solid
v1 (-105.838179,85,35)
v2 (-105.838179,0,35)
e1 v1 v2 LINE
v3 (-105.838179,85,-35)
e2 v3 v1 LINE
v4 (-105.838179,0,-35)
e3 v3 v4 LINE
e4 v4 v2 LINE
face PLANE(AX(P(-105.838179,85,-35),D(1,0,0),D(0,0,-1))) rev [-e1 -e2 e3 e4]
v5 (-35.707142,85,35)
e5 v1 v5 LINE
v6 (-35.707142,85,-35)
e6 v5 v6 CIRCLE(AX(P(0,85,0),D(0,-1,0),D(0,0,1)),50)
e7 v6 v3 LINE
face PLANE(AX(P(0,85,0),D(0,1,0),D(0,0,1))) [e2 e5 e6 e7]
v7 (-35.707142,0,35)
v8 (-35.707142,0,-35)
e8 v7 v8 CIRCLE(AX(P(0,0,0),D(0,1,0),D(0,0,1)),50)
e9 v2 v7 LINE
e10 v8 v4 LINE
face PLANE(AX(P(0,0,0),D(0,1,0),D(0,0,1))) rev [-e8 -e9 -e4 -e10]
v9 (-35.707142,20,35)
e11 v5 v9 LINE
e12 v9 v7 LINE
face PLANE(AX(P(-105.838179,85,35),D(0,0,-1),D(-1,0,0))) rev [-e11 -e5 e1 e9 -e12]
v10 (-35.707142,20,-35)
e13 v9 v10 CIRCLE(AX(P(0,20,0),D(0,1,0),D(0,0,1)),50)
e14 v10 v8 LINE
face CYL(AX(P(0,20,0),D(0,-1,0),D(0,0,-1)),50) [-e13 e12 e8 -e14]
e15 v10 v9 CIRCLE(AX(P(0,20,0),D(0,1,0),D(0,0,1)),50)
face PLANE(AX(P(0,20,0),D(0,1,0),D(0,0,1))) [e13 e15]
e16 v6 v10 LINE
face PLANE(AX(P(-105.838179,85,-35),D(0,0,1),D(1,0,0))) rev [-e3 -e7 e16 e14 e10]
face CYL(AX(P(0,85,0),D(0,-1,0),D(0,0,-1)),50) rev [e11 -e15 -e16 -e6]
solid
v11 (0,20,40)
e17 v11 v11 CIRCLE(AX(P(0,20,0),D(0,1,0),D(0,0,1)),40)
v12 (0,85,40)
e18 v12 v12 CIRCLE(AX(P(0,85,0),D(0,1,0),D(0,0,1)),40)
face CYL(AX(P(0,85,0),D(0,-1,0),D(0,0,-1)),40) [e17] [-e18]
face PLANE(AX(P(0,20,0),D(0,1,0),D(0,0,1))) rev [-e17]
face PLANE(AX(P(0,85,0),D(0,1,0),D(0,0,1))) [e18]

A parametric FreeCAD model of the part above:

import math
import FreeCAD as App
import Part
import Sketcher

doc = App.newDocument("Part")
body = doc.addObject("PartDesign::Body", "Body")

sketch1 = body.newObject("Sketcher::SketchObject", "Sketch")
sketch1.AttachmentSupport = (doc.getObject("XZ_Plane"), [""])
sketch1.MapMode = "FlatFace"
sketch1.addGeometry(Part.Circle(App.Vector(0, 0, 0), App.Vector(0, 0, 1), 50), False)
sketch1.addConstraint(Sketcher.Constraint("Coincident", 0, 3, -1, 1))
sketch1.addConstraint(Sketcher.Constraint("Diameter", 0, 100.0))
pad1 = body.newObject("PartDesign::Pad", "Pad")
pad1.Profile = sketch1
pad1.Length = 20
pad1.Reversed = True

sketch2 = body.newObject("Sketcher::SketchObject", "Sketch001")
sketch2.AttachmentSupport = (doc.getObject("XZ_Plane"), [""])
sketch2.MapMode = "FlatFace"
sketch2.addGeometry(Part.LineSegment(App.Vector(-106, -35, 0), App.Vector(-106, 35, 0)), False)
sketch2.addGeometry(Part.LineSegment(App.Vector(-106, 35, 0), App.Vector(-36, 35, 0)), False)
sketch2.addGeometry(Part.ArcOfCircle(Part.Circle(App.Vector(0, 0, 0), App.Vector(0, 0, 1), 50), math.radians(136), math.radians(224)), False)
sketch2.addGeometry(Part.LineSegment(App.Vector(-36, -35, 0), App.Vector(-106, -35, 0)), False)
sketch2.addConstraint(Sketcher.Constraint("Coincident", 0, 2, 1, 1))
sketch2.addConstraint(Sketcher.Constraint("Coincident", 1, 2, 2, 1))
sketch2.addConstraint(Sketcher.Constraint("Coincident", 2, 2, 3, 1))
sketch2.addConstraint(Sketcher.Constraint("Coincident", 3, 2, 0, 1))
sketch2.addConstraint(Sketcher.Constraint("Vertical", 0))
sketch2.addConstraint(Sketcher.Constraint("Horizontal", 1))
sketch2.addConstraint(Sketcher.Constraint("Horizontal", 3))
sketch2.addConstraint(Sketcher.Constraint("Coincident", 2, 3, -1, 1))
sketch2.addConstraint(Sketcher.Constraint("Vertical", 1, 2, 2, 2))
sketch2.addConstraint(Sketcher.Constraint("Radius", 2, 50.0))
sketch2.addConstraint(Sketcher.Constraint("DistanceY", 0, 1, 0, 2, 70.0))
sketch2.addConstraint(Sketcher.Constraint("DistanceX", 1, 1, 1, 2, 70.131037))
pad2 = body.newObject("PartDesign::Pad", "Pad001")
pad2.Profile = sketch2
pad2.Length = 85
pad2.Reversed = True
body2 = doc.addObject("PartDesign::Body", "Body001")

sketch3 = body2.newObject("Sketcher::SketchObject", "Sketch002")
sketch3.AttachmentSupport = (doc.getObject("XZ_Plane001"), [""])
sketch3.MapMode = "FlatFace"
sketch3.AttachmentOffset = App.Placement(App.Vector(0, 0, -20), App.Rotation())
sketch3.addGeometry(Part.Circle(App.Vector(0, 0, 0), App.Vector(0, 0, 1), 40), False)
sketch3.addConstraint(Sketcher.Constraint("Coincident", 0, 3, -1, 1))
sketch3.addConstraint(Sketcher.Constraint("Diameter", 0, 80.0))
pad3 = body2.newObject("PartDesign::Pad", "Pad002")
pad3.Profile = sketch3
pad3.Length = 65
pad3.Reversed = True

doc.recompute()
